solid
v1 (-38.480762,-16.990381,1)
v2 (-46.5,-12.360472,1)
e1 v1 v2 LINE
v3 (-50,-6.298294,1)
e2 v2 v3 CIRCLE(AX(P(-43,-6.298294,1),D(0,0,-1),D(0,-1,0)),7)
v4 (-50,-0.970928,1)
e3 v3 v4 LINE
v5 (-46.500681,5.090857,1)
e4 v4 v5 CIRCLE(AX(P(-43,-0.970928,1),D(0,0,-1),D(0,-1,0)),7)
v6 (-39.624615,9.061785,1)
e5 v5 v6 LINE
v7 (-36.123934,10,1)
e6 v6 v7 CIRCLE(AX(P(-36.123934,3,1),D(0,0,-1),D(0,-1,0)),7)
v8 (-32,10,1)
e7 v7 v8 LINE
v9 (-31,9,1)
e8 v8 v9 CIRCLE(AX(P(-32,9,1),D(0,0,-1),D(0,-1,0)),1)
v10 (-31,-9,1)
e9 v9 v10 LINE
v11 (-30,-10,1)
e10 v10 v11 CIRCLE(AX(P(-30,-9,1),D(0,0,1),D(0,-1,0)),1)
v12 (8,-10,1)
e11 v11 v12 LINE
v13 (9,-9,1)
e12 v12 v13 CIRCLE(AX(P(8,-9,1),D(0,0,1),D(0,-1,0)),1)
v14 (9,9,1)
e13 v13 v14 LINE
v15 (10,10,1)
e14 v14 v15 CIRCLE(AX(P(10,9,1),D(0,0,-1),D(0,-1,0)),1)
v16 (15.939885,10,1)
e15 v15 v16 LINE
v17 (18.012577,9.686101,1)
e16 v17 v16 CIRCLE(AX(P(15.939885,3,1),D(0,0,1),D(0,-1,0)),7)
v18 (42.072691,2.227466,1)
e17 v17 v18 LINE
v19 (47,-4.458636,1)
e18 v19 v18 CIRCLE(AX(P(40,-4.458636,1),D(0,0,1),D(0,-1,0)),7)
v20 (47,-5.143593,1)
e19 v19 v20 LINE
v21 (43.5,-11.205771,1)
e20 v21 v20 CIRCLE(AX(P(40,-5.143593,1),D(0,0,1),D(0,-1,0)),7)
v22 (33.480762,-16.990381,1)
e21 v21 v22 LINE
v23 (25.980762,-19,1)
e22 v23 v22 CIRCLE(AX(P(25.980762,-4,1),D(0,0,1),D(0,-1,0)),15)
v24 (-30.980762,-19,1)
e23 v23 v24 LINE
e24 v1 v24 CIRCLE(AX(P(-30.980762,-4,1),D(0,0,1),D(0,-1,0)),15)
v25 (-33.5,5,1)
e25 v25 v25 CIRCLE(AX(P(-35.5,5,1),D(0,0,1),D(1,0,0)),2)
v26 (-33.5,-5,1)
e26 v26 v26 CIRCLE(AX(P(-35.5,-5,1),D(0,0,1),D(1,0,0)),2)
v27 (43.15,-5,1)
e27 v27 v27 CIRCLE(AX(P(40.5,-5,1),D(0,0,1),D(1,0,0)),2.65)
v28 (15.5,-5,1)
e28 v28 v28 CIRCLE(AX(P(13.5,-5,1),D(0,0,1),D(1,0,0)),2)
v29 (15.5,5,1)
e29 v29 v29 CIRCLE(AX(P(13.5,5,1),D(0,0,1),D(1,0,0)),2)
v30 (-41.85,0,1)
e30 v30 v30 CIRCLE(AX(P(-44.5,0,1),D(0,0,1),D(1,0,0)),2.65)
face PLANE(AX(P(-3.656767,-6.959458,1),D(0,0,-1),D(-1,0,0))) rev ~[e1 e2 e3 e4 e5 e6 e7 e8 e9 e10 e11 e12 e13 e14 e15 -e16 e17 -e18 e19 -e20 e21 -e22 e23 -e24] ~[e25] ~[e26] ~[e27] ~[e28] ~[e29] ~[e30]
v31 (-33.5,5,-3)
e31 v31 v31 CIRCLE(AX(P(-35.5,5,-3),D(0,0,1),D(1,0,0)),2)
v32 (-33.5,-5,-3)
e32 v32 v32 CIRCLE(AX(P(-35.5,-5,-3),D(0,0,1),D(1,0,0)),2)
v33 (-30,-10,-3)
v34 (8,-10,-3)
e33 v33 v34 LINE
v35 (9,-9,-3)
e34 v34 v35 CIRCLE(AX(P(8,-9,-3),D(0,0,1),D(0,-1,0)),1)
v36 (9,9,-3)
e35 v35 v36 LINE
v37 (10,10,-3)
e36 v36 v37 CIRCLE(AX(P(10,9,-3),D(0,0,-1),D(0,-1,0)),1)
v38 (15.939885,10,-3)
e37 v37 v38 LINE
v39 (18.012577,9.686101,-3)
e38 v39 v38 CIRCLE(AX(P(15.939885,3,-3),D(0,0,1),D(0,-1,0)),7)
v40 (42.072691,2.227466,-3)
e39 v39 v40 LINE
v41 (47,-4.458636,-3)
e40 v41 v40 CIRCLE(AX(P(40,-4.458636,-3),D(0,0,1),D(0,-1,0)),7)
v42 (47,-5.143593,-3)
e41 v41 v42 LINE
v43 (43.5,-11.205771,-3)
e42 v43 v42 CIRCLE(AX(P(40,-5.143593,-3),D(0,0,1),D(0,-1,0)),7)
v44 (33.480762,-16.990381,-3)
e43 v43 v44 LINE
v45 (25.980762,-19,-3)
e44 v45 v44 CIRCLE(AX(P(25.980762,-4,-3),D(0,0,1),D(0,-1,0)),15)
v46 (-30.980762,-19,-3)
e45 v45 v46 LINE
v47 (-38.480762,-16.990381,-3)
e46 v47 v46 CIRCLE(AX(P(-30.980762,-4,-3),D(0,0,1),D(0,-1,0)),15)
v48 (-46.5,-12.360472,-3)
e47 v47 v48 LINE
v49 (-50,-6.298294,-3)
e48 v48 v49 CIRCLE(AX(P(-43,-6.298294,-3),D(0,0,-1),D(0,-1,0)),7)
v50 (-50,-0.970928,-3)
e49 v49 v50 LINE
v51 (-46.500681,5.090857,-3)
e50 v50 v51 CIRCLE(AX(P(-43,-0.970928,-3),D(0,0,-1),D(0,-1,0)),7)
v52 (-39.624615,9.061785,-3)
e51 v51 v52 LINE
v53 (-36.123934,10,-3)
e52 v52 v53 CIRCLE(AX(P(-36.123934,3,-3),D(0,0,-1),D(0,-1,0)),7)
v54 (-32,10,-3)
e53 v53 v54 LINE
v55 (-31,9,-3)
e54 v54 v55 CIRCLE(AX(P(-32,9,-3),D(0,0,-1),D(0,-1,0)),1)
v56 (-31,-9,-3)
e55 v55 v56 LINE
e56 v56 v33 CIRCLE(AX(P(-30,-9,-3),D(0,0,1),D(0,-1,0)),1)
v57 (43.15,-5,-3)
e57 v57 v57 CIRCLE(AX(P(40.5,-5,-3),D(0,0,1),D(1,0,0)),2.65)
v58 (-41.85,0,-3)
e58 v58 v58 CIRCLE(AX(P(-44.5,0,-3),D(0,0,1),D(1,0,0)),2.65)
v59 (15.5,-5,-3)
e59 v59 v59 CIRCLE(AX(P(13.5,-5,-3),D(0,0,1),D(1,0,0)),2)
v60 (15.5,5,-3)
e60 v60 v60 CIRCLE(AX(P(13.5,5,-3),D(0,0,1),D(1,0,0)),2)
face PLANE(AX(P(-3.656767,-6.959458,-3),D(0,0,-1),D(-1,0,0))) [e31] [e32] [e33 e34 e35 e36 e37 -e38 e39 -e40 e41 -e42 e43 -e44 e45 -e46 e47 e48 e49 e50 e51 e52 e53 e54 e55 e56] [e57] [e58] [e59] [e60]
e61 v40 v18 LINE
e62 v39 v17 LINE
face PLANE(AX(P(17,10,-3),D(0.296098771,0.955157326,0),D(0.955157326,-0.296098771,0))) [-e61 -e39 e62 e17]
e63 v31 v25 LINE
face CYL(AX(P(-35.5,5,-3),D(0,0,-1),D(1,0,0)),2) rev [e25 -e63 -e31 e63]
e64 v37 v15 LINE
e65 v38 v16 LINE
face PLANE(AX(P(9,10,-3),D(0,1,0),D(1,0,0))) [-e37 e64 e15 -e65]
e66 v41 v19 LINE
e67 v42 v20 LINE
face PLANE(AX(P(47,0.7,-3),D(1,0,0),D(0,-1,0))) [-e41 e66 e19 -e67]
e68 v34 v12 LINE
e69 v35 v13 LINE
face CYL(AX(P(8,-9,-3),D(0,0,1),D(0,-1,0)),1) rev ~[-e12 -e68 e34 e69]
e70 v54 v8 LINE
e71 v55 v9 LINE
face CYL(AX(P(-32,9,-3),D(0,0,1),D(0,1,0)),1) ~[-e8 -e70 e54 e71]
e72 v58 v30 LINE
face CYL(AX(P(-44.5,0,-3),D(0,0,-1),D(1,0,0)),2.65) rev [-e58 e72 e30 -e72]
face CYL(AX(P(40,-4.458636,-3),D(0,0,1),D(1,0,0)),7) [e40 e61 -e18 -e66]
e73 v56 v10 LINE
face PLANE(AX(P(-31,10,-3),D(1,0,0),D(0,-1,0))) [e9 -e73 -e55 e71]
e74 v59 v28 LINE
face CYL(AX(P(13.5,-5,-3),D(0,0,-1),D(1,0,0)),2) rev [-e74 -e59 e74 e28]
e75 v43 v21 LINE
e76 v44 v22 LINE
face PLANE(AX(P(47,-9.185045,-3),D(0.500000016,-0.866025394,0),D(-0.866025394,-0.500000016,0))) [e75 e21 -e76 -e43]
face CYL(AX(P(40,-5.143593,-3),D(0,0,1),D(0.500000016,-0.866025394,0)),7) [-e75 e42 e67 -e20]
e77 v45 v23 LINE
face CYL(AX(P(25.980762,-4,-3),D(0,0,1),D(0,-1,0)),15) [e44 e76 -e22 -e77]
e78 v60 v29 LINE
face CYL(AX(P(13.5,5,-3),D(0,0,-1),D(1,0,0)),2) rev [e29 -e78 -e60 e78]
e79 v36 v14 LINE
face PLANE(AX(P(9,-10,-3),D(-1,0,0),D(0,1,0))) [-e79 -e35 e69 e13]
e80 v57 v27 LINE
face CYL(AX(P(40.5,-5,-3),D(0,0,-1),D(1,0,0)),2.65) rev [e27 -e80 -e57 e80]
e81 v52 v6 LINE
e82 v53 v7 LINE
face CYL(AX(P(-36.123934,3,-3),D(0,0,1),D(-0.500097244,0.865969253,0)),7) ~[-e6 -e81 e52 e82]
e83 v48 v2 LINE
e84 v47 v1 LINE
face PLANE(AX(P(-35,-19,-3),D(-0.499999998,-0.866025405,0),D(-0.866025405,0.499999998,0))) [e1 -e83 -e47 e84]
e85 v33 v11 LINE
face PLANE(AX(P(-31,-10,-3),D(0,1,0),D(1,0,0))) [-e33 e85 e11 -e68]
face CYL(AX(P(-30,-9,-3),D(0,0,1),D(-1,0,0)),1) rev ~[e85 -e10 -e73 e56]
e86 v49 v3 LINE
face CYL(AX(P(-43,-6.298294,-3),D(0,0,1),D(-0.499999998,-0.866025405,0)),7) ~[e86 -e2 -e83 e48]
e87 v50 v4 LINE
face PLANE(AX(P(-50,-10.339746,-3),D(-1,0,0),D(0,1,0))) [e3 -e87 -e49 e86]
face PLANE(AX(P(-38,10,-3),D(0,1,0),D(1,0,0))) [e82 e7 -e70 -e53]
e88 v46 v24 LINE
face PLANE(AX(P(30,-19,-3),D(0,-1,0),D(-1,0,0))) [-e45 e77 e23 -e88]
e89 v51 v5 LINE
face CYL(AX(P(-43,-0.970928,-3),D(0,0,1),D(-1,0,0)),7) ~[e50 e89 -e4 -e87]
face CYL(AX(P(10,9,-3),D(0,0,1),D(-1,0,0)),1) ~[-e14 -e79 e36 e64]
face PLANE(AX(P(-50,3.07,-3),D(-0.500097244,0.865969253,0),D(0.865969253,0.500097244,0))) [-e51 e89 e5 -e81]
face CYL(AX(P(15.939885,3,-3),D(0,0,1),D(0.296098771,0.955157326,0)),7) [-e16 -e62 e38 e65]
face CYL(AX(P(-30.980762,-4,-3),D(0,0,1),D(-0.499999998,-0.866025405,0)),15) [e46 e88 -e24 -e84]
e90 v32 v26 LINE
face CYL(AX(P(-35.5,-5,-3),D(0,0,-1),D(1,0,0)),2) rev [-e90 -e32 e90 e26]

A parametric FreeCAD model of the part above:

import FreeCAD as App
import Part
import Sketcher
Q = App.Units.Quantity


def edges_at(feature, points):
    """Names of the edges that pass closest to the given points."""
    edges = feature.Shape.Edges
    near = lambda p: min(range(len(edges)), key=lambda i: edges[i].distToShape(Part.Vertex(*p))[0])
    return sorted({f"Edge{near(p) + 1}" for p in points})

doc = App.newDocument("Part")
params = doc.addObject("Spreadsheet::Sheet", "Params")
for row, (alias, value) in enumerate([
    ("sketch1_diameter", "4 mm"),
    ("sketch1_diameter2", "5.3 mm"),
    ("sketch1_width", "7 mm"),
    ("sketch1_width2", "65 mm"),
    ("sketch1_width3", "8 mm"),
    ("pad1_length", "4 mm"),
    ("fillet_radius", "15 mm"),
    ("fillet2_radius", "7 mm"),
    ("fillet3_radius", "7 mm"),
    ("fillet4_radius", "1 mm"),
], start=1):
    params.set(f"A{row}", alias)
    params.set(f"B{row}", "=" + value)
    params.setAlias(f"B{row}", alias)

body = doc.addObject("PartDesign::Body", "Body")

sketch1 = doc.addObject("Sketcher::SketchObject", "Sketch")
body.addObject(sketch1)
sketch1.AttachmentSupport = (doc.XY_Plane, [""])
sketch1.MapMode = "FlatFace"
sketch1.AttachmentOffset = App.Placement(App.Vector(0, 0, -3), App.Rotation())
sketch1.addGeometry(Part.LineSegment(App.Vector(-31, 10, 0), App.Vector(-38, 10, 0)), False)
sketch1.addGeometry(Part.LineSegment(App.Vector(-38, 10, 0), App.Vector(-50, 3.1, 0)), False)
sketch1.addGeometry(Part.LineSegment(App.Vector(-50, 3.1, 0), App.Vector(-50, -10.3, 0)), False)
sketch1.addGeometry(Part.LineSegment(App.Vector(-50, -10.3, 0), App.Vector(-35, -19, 0)), False)
sketch1.addGeometry(Part.LineSegment(App.Vector(-35, -19, 0), App.Vector(30, -19, 0)), False)
sketch1.addGeometry(Part.LineSegment(App.Vector(30, -19, 0), App.Vector(47, -9.2, 0)), False)
sketch1.addGeometry(Part.LineSegment(App.Vector(47, -9.2, 0), App.Vector(47, 0.7, 0)), False)
sketch1.addGeometry(Part.LineSegment(App.Vector(47, 0.7, 0), App.Vector(17, 10, 0)), False)
sketch1.addGeometry(Part.LineSegment(App.Vector(17, 10, 0), App.Vector(9, 10, 0)), False)
sketch1.addGeometry(Part.LineSegment(App.Vector(9, 10, 0), App.Vector(9, -10, 0)), False)
sketch1.addGeometry(Part.LineSegment(App.Vector(9, -10, 0), App.Vector(-31, -10, 0)), False)
sketch1.addGeometry(Part.LineSegment(App.Vector(-31, -10, 0), App.Vector(-31, 10, 0)), False)
sketch1.addGeometry(Part.Circle(App.Vector(40.5, -5, 0), App.Vector(0, 0, 1), 2.6), False)
sketch1.addGeometry(Part.Circle(App.Vector(13.5, -5, 0), App.Vector(0, 0, 1), 2), False)
sketch1.addGeometry(Part.Circle(App.Vector(-35.5, -5, 0), App.Vector(0, 0, 1), 2), False)
sketch1.addGeometry(Part.Circle(App.Vector(13.5, 5, 0), App.Vector(0, 0, 1), 2), False)
sketch1.addGeometry(Part.Circle(App.Vector(-44.5, 0, 0), App.Vector(0, 0, 1), 2.6), False)
sketch1.addGeometry(Part.Circle(App.Vector(-35.5, 5, 0), App.Vector(0, 0, 1), 2), False)
sketch1.addConstraint(Sketcher.Constraint("Coincident", 0, 2, 1, 1))
sketch1.addConstraint(Sketcher.Constraint("Coincident", 1, 2, 2, 1))
sketch1.addConstraint(Sketcher.Constraint("Coincident", 2, 2, 3, 1))
sketch1.addConstraint(Sketcher.Constraint("Coincident", 3, 2, 4, 1))
sketch1.addConstraint(Sketcher.Constraint("Coincident", 4, 2, 5, 1))
sketch1.addConstraint(Sketcher.Constraint("Coincident", 5, 2, 6, 1))
sketch1.addConstraint(Sketcher.Constraint("Coincident", 6, 2, 7, 1))
sketch1.addConstraint(Sketcher.Constraint("Coincident", 7, 2, 8, 1))
sketch1.addConstraint(Sketcher.Constraint("Coincident", 8, 2, 9, 1))
sketch1.addConstraint(Sketcher.Constraint("Coincident", 9, 2, 10, 1))
sketch1.addConstraint(Sketcher.Constraint("Coincident", 10, 2, 11, 1))
sketch1.addConstraint(Sketcher.Constraint("Coincident", 11, 2, 0, 1))
sketch1.addConstraint(Sketcher.Constraint("Horizontal", 0))
sketch1.addConstraint(Sketcher.Constraint("Vertical", 2))
sketch1.addConstraint(Sketcher.Constraint("Horizontal", 4))
sketch1.addConstraint(Sketcher.Constraint("Vertical", 6))
sketch1.addConstraint(Sketcher.Constraint("Horizontal", 8))
sketch1.addConstraint(Sketcher.Constraint("Vertical", 9))
sketch1.addConstraint(Sketcher.Constraint("Horizontal", 10))
sketch1.addConstraint(Sketcher.Constraint("Vertical", 11))
sketch1.addConstraint(Sketcher.Constraint("Equal", 13, 14))
sketch1.addConstraint(Sketcher.Constraint("Equal", 14, 15))
sketch1.addConstraint(Sketcher.Constraint("Equal", 12, 16))
sketch1.addConstraint(Sketcher.Constraint("Equal", 15, 17))
sketch1.addConstraint(Sketcher.Constraint("Symmetric", 13, 3, 15, 3, -1))
sketch1.addConstraint(Sketcher.Constraint("Symmetric", 14, 3, 17, 3, -1))
sketch1.addConstraint(Sketcher.Constraint("PointOnObject", 16, 3, -1))
sketch1.addConstraint(Sketcher.Constraint("Horizontal", 12, 3, 13, 3))
sketch1.addConstraint(Sketcher.Constraint("Horizontal", 13, 3, 14, 3))
sketch1.addConstraint(Sketcher.Constraint("Horizontal", 0, 2, 7, 2))
sketch1.addConstraint(Sketcher.Constraint("Diameter", 13, Q("4 mm")))
sketch1.addConstraint(Sketcher.Constraint("Diameter", 12, Q("5.3 mm")))
sketch1.addConstraint(Sketcher.Constraint("DistanceX", 0, 2, 0, 1, Q("7 mm")))
sketch1.addConstraint(Sketcher.Constraint("DistanceX", 4, 1, 4, 2, Q("65 mm")))
sketch1.addConstraint(Sketcher.Constraint("DistanceX", 8, 2, 8, 1, Q("8 mm")))
sketch1.addConstraint(Sketcher.Constraint("DistanceX", 10, 2, 10, 1, Q("40 mm")))
sketch1.addConstraint(Sketcher.Constraint("DistanceY", 9, 2, 9, 1, Q("20 mm")))
sketch1.addConstraint(Sketcher.Constraint("Angle", 3, Q("-30 deg")))
sketch1.addConstraint(Sketcher.Constraint("Angle", 5, Q("30.000001 deg")))
sketch1.addConstraint(Sketcher.Constraint("DistanceY", 12, 3, -1, 1, Q("5 mm")))
sketch1.addConstraint(Sketcher.Constraint("DistanceX", 0, 2, -1, 1, Q("38 mm")))
sketch1.addConstraint(Sketcher.Constraint("DistanceY", -1, 1, 0, 2, Q("10 mm")))
sketch1.addConstraint(Sketcher.Constraint("DistanceX", 1, 2, -1, 1, Q("50 mm")))
sketch1.addConstraint(Sketcher.Constraint("DistanceX", 3, 2, -1, 1, Q("35 mm")))
sketch1.addConstraint(Sketcher.Constraint("DistanceY", 3, 2, -1, 1, Q("19 mm")))
sketch1.addConstraint(Sketcher.Constraint("DistanceX", -1, 1, 5, 2, Q("47 mm")))
sketch1.addConstraint(Sketcher.Constraint("DistanceX", 13, 3, 12, 3, Q("27 mm")))
sketch1.addConstraint(Sketcher.Constraint("DistanceX", 14, 3, 13, 3, Q("49 mm")))
sketch1.addConstraint(Sketcher.Constraint("DistanceX", 16, 3, 14, 3, Q("9 mm")))
sketch1.addConstraint(Sketcher.Constraint("DistanceX", -1, 1, 12, 3, Q("40.5 mm")))
sketch1.addConstraint(Sketcher.Constraint("DistanceY", -1, 1, 6, 2, Q("0.7 mm")))
sketch1.addConstraint(Sketcher.Constraint("DistanceY", -1, 1, 1, 2, Q("3.07 mm")))
sketch1.setExpression("Constraints[30]", "Params.sketch1_diameter")
sketch1.setExpression("Constraints[31]", "Params.sketch1_diameter2")
sketch1.setExpression("Constraints[32]", "Params.sketch1_width")
sketch1.setExpression("Constraints[33]", "Params.sketch1_width2")
sketch1.setExpression("Constraints[34]", "Params.sketch1_width3")
pad1 = doc.addObject("PartDesign::Pad", "Pad")
body.addObject(pad1)
pad1.Profile = sketch1
pad1.setExpression("Length", "Params.pad1_length")
doc.recompute()

fillet = doc.addObject("PartDesign::Fillet", "Fillet")
body.addObject(fillet)
fillet.Base = (pad1, edges_at(pad1, [(30, -19, -1), (-35, -19, -1)]))
fillet.setExpression("Radius", "Params.fillet_radius")
doc.recompute()

fillet2 = doc.addObject("PartDesign::Fillet", "Fillet001")
body.addObject(fillet2)
fillet2.Base = (fillet, edges_at(fillet, [(-50, -10.34, -1), (47, -9.185, -1)]))
fillet2.setExpression("Radius", "Params.fillet2_radius")
doc.recompute()

fillet3 = doc.addObject("PartDesign::Fillet", "Fillet002")
body.addObject(fillet3)
fillet3.Base = (fillet2, edges_at(fillet2, [
    (-50, 3.07, -1),
    (-38, 10, -1),
    (17, 10, -1),
    (47, 0.7, -1),
]))
fillet3.setExpression("Radius", "Params.fillet3_radius")
doc.recompute()

fillet4 = doc.addObject("PartDesign::Fillet", "Fillet003")
body.addObject(fillet4)
fillet4.Base = (fillet3, edges_at(fillet3, [
    (-31, 10, -1),
    (9, 10, -1),
    (9, -10, -1),
    (-31, -10, -1),
]))
fillet4.setExpression("Radius", "Params.fillet4_radius")

doc.recompute()
